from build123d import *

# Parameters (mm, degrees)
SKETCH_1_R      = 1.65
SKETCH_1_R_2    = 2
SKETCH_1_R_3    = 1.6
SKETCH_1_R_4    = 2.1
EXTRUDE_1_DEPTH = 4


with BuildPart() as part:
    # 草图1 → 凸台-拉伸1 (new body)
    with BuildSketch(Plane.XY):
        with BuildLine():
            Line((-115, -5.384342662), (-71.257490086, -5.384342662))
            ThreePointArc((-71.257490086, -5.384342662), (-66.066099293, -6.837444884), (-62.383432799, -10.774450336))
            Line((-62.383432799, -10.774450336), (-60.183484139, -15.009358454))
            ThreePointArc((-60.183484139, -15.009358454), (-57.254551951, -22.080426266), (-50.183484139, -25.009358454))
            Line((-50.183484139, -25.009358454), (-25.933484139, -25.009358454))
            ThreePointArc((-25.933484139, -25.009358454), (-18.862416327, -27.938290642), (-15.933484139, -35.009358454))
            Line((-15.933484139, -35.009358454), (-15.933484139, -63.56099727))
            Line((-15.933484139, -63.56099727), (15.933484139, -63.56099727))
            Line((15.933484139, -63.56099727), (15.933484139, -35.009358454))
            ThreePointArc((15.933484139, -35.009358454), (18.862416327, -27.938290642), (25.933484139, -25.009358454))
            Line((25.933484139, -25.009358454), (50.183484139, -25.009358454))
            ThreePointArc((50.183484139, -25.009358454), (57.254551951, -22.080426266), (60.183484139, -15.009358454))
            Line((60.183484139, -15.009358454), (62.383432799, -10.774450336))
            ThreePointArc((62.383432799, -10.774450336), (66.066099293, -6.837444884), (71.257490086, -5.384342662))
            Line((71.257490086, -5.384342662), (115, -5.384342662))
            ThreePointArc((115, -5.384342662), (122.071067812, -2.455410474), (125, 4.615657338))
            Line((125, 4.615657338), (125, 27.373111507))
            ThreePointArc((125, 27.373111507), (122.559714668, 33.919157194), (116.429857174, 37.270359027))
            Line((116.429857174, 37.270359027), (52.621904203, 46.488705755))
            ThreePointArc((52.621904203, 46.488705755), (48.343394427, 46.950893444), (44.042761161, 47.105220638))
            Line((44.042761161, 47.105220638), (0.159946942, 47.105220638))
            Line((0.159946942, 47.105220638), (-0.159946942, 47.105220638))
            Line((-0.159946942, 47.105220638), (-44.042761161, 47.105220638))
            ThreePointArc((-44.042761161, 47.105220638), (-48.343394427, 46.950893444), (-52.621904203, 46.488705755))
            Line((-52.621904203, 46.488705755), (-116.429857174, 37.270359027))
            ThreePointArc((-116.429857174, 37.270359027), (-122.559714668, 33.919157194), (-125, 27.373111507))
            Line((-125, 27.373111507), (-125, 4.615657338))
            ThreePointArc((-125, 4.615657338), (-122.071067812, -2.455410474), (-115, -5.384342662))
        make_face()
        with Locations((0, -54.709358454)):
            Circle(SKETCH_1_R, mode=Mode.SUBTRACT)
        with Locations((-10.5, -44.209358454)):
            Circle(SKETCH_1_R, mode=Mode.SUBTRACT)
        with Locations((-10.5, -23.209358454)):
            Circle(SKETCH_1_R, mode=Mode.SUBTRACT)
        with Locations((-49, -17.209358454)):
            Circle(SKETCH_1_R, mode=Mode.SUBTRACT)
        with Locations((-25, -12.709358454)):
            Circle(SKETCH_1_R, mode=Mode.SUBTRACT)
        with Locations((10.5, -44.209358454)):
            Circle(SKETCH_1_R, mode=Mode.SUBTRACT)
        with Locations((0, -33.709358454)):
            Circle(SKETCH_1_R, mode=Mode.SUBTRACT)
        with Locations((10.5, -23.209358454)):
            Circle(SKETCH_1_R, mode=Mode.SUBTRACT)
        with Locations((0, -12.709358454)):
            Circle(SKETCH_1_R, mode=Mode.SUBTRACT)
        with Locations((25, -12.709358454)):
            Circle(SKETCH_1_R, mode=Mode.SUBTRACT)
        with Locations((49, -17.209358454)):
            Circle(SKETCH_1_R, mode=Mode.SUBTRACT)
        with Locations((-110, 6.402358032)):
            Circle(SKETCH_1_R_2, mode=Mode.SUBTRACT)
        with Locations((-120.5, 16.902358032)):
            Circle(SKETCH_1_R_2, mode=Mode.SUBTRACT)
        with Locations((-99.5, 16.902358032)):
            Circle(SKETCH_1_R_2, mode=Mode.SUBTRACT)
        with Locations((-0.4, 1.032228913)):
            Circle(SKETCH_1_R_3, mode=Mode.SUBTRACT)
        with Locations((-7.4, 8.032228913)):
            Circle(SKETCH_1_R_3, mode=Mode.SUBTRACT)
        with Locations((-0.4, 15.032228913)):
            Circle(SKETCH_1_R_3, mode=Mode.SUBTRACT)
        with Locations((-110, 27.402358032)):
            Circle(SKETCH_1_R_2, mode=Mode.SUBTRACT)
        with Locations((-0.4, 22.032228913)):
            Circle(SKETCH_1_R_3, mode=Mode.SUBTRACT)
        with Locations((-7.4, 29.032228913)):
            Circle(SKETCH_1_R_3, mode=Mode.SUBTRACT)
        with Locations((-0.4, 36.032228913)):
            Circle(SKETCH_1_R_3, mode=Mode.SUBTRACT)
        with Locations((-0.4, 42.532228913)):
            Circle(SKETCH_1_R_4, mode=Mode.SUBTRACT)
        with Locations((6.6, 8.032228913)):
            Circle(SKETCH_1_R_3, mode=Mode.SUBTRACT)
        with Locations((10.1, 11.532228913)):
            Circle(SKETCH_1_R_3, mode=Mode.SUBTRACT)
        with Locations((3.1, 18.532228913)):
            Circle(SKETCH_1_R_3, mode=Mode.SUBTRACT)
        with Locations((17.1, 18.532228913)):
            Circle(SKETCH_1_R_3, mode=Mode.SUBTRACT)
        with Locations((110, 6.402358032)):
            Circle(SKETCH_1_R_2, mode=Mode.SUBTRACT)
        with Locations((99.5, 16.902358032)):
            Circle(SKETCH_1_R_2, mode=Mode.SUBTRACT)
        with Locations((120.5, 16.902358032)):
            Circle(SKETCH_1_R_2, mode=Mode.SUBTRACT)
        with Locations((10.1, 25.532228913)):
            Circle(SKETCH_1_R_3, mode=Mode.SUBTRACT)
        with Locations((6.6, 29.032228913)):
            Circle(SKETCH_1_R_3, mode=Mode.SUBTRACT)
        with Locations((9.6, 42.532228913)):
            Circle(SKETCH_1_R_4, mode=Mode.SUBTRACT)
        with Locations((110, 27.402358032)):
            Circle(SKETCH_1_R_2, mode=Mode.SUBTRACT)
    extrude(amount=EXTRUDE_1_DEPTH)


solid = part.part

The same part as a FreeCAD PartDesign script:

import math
import FreeCAD as App
import Part
import Sketcher

V = App.Vector

doc = App.newDocument("Part")
body = doc.addObject("PartDesign::Body", "Body")

# Sketch on XY plane
sketch1 = body.newObject("Sketcher::SketchObject", "Sketch")
sketch1.AttachmentSupport = (doc.getObject("XY_Plane"), [""])
sketch1.MapMode = "FlatFace"
sketch1.addGeometry([
    Part.LineSegment(V(-115, -5.4, 0), V(-71.3, -5.4, 0)),  # 0
    Part.ArcOfCircle(Part.Circle(V(-71.3, -15.4, 0), V(0, 0, 1), 10), math.radians(27), math.radians(90)),  # 1
    Part.LineSegment(V(-62.4, -10.8, 0), V(-60.2, -15, 0)),  # 2
    Part.ArcOfCircle(Part.Circle(V(-50.2, -15, 0), V(0, 0, 1), 10), math.radians(180), math.radians(270)),  # 3
    Part.LineSegment(V(-50.2, -25, 0), V(-25.9, -25, 0)),  # 4
    Part.ArcOfCircle(Part.Circle(V(-25.9, -35, 0), V(0, 0, 1), 10), math.radians(0), math.radians(90)),  # 5
    Part.LineSegment(V(-15.9, -35, 0), V(-15.9, -63.6, 0)),  # 6
    Part.LineSegment(V(-15.9, -63.6, 0), V(15.9, -63.6, 0)),  # 7
    Part.LineSegment(V(15.9, -63.6, 0), V(15.9, -35, 0)),  # 8
    Part.ArcOfCircle(Part.Circle(V(25.9, -35, 0), V(0, 0, 1), 10), math.radians(90), math.radians(180)),  # 9
    Part.LineSegment(V(25.9, -25, 0), V(50.2, -25, 0)),  # 10
    Part.ArcOfCircle(Part.Circle(V(50.2, -15, 0), V(0, 0, 1), 10), math.radians(-90), math.radians(0)),  # 11
    Part.LineSegment(V(60.2, -15, 0), V(62.4, -10.8, 0)),  # 12
    Part.ArcOfCircle(Part.Circle(V(71.3, -15.4, 0), V(0, 0, 1), 10), math.radians(90), math.radians(153)),  # 13
    Part.LineSegment(V(71.3, -5.4, 0), V(115, -5.4, 0)),  # 14
    Part.ArcOfCircle(Part.Circle(V(115, 4.6, 0), V(0, 0, 1), 10), math.radians(-90), math.radians(0)),  # 15
    Part.LineSegment(V(125, 4.6, 0), V(125, 27.4, 0)),  # 16
    Part.ArcOfCircle(Part.Circle(V(115, 27.4, 0), V(0, 0, 1), 10), math.radians(0), math.radians(82)),  # 17
    Part.LineSegment(V(116.4, 37.3, 0), V(52.6, 46.5, 0)),  # 18
    Part.ArcOfCircle(Part.Circle(V(44, -12.9, 0), V(0, 0, 1), 60), math.radians(81.78), math.radians(90)),  # 19
    Part.LineSegment(V(44, 47.1, 0), V(-44, 47.1, 0)),  # 20
    Part.ArcOfCircle(Part.Circle(V(-44, -12.9, 0), V(0, 0, 1), 60), math.radians(90), math.radians(98.22)),  # 21
    Part.LineSegment(V(-52.6, 46.5, 0), V(-116.4, 37.3, 0)),  # 22
    Part.ArcOfCircle(Part.Circle(V(-115, 27.4, 0), V(0, 0, 1), 10), math.radians(98), math.radians(180)),  # 23
    Part.LineSegment(V(-125, 27.4, 0), V(-125, 4.6, 0)),  # 24
    Part.ArcOfCircle(Part.Circle(V(-115, 4.6, 0), V(0, 0, 1), 10), math.radians(180), math.radians(270)),  # 25
    Part.Circle(V(-10.5, -44.2, 0), V(0, 0, 1), 1.6),  # 26
    Part.Circle(V(-10.5, -23.2, 0), V(0, 0, 1), 1.6),  # 27
    Part.Circle(V(-49, -17.2, 0), V(0, 0, 1), 1.6),  # 28
    Part.Circle(V(-25, -12.7, 0), V(0, 0, 1), 1.6),  # 29
    Part.Circle(V(0, -54.7, 0), V(0, 0, 1), 1.6),  # 30
    Part.Circle(V(10.5, -44.2, 0), V(0, 0, 1), 1.6),  # 31
    Part.Circle(V(0, -33.7, 0), V(0, 0, 1), 1.6),  # 32
    Part.Circle(V(10.5, -23.2, 0), V(0, 0, 1), 1.6),  # 33
    Part.Circle(V(0, -12.7, 0), V(0, 0, 1), 1.6),  # 34
    Part.Circle(V(25, -12.7, 0), V(0, 0, 1), 1.6),  # 35
    Part.Circle(V(49, -17.2, 0), V(0, 0, 1), 1.6),  # 36
    Part.Circle(V(-110, 6.4, 0), V(0, 0, 1), 2),  # 37
    Part.Circle(V(-120.5, 16.9, 0), V(0, 0, 1), 2),  # 38
    Part.Circle(V(-99.5, 16.9, 0), V(0, 0, 1), 2),  # 39
    Part.Circle(V(-0.4, 1, 0), V(0, 0, 1), 1.6),  # 40
    Part.Circle(V(-7.4, 8, 0), V(0, 0, 1), 1.6),  # 41
    Part.Circle(V(-0.4, 15, 0), V(0, 0, 1), 1.6),  # 42
    Part.Circle(V(-110, 27.4, 0), V(0, 0, 1), 2),  # 43
    Part.Circle(V(-0.4, 22, 0), V(0, 0, 1), 1.6),  # 44
    Part.Circle(V(-7.4, 29, 0), V(0, 0, 1), 1.6),  # 45
    Part.Circle(V(-0.4, 36, 0), V(0, 0, 1), 1.6),  # 46
    Part.Circle(V(-0.4, 42.5, 0), V(0, 0, 1), 2.1),  # 47
    Part.Circle(V(6.6, 8, 0), V(0, 0, 1), 1.6),  # 48
    Part.Circle(V(10.1, 11.5, 0), V(0, 0, 1), 1.6),  # 49
    Part.Circle(V(3.1, 18.5, 0), V(0, 0, 1), 1.6),  # 50
    Part.Circle(V(17.1, 18.5, 0), V(0, 0, 1), 1.6),  # 51
    Part.Circle(V(110, 6.4, 0), V(0, 0, 1), 2),  # 52
    Part.Circle(V(99.5, 16.9, 0), V(0, 0, 1), 2),  # 53
    Part.Circle(V(120.5, 16.9, 0), V(0, 0, 1), 2),  # 54
    Part.Circle(V(10.1, 25.5, 0), V(0, 0, 1), 1.6),  # 55
    Part.Circle(V(6.6, 29, 0), V(0, 0, 1), 1.6),  # 56
    Part.Circle(V(9.6, 42.5, 0), V(0, 0, 1), 2.1),  # 57
    Part.Circle(V(110, 27.4, 0), V(0, 0, 1), 2),  # 58
], False)
sketch1.addConstraint([
    Sketcher.Constraint("Tangent", 0, 2, 1, 2),
    Sketcher.Constraint("Tangent", 1, 1, 2, 1),
    Sketcher.Constraint("Coincident", 2, 2, 3, 1),
    Sketcher.Constraint("Tangent", 3, 2, 4, 1),
    Sketcher.Constraint("Tangent", 4, 2, 5, 2),
    Sketcher.Constraint("Tangent", 5, 1, 6, 1),
    Sketcher.Constraint("Coincident", 6, 2, 7, 1),
    Sketcher.Constraint("Coincident", 7, 2, 8, 1),
    Sketcher.Constraint("Tangent", 8, 2, 9, 2),
    Sketcher.Constraint("Tangent", 9, 1, 10, 1),
    Sketcher.Constraint("Tangent", 10, 2, 11, 1),
    Sketcher.Constraint("Coincident", 11, 2, 12, 1),
    Sketcher.Constraint("Tangent", 12, 2, 13, 2),
    Sketcher.Constraint("Tangent", 13, 1, 14, 1),
    Sketcher.Constraint("Tangent", 14, 2, 15, 1),
    Sketcher.Constraint("Tangent", 15, 2, 16, 1),
    Sketcher.Constraint("Tangent", 16, 2, 17, 1),
    Sketcher.Constraint("Tangent", 17, 2, 18, 1),
    Sketcher.Constraint("Tangent", 18, 2, 19, 1),
    Sketcher.Constraint("Tangent", 19, 2, 20, 1),
    Sketcher.Constraint("Tangent", 20, 2, 21, 1),
    Sketcher.Constraint("Tangent", 21, 2, 22, 1),
    Sketcher.Constraint("Tangent", 22, 2, 23, 1),
    Sketcher.Constraint("Tangent", 23, 2, 24, 1),
    Sketcher.Constraint("Tangent", 24, 2, 25, 1),
    Sketcher.Constraint("Tangent", 25, 2, 0, 1),
    Sketcher.Constraint("Horizontal", 0),
    Sketcher.Constraint("Horizontal", 4),
    Sketcher.Constraint("Vertical", 6),
    Sketcher.Constraint("Horizontal", 7),
    Sketcher.Constraint("Vertical", 8),
    Sketcher.Constraint("Horizontal", 10),
    Sketcher.Constraint("Horizontal", 14),
    Sketcher.Constraint("Vertical", 16),
    Sketcher.Constraint("Horizontal", 20),
    Sketcher.Constraint("Vertical", 24),
    Sketcher.Constraint("Equal", 1, 3),
    Sketcher.Constraint("Equal", 3, 5),
    Sketcher.Constraint("Equal", 5, 9),
    Sketcher.Constraint("Equal", 9, 11),
    Sketcher.Constraint("Equal", 11, 13),
    Sketcher.Constraint("Equal", 13, 15),
    Sketcher.Constraint("Equal", 15, 17),
    Sketcher.Constraint("Equal", 19, 21),
    Sketcher.Constraint("Equal", 17, 23),
    Sketcher.Constraint("Equal", 23, 25),
    Sketcher.Constraint("Equal", 26, 27),
    Sketcher.Constraint("Equal", 27, 28),
    Sketcher.Constraint("Equal", 28, 29),
    Sketcher.Constraint("Equal", 29, 30),
    Sketcher.Constraint("Equal", 30, 31),
    Sketcher.Constraint("Equal", 31, 32),
    Sketcher.Constraint("Equal", 32, 33),
    Sketcher.Constraint("Equal", 33, 34),
    Sketcher.Constraint("Equal", 34, 35),
    Sketcher.Constraint("Equal", 35, 36),
    Sketcher.Constraint("Equal", 37, 38),
    Sketcher.Constraint("Equal", 38, 39),
    Sketcher.Constraint("Equal", 40, 41),
    Sketcher.Constraint("Equal", 41, 42),
    Sketcher.Constraint("Equal", 39, 43),
    Sketcher.Constraint("Equal", 42, 44),
    Sketcher.Constraint("Equal", 44, 45),
    Sketcher.Constraint("Equal", 45, 46),
    Sketcher.Constraint("Equal", 46, 48),
    Sketcher.Constraint("Equal", 48, 49),
    Sketcher.Constraint("Equal", 49, 50),
    Sketcher.Constraint("Equal", 50, 51),
    Sketcher.Constraint("Equal", 43, 52),
    Sketcher.Constraint("Equal", 52, 53),
    Sketcher.Constraint("Equal", 53, 54),
    Sketcher.Constraint("Equal", 51, 55),
    Sketcher.Constraint("Equal", 55, 56),
    Sketcher.Constraint("Equal", 47, 57),
    Sketcher.Constraint("Equal", 54, 58),
    Sketcher.Constraint("Symmetric", 5, 3, 9, 3, -2),
    Sketcher.Constraint("Symmetric", 1, 3, 13, 3, -2),
    Sketcher.Constraint("Symmetric", 17, 3, 23, 3, -2),
    Sketcher.Constraint("Symmetric", 26, 3, 31, 3, -2),
    Sketcher.Constraint("Symmetric", 27, 3, 33, 3, -2),
    Sketcher.Constraint("Symmetric", 29, 3, 35, 3, -2),
    Sketcher.Constraint("Symmetric", 28, 3, 36, 3, -2),
    Sketcher.Constraint("Symmetric", 37, 3, 52, 3, -2),
    Sketcher.Constraint("Symmetric", 39, 3, 53, 3, -2),
    Sketcher.Constraint("Symmetric", 38, 3, 54, 3, -2),
    Sketcher.Constraint("Symmetric", 43, 3, 58, 3, -2),
    Sketcher.Constraint("Symmetric", 2, 2, 11, 2, -2),
    Sketcher.Constraint("PointOnObject", 30, 3, -2),
    Sketcher.Constraint("PointOnObject", 32, 3, -2),
    Sketcher.Constraint("PointOnObject", 34, 3, -2),
    Sketcher.Constraint("Horizontal", 29, 3, 34, 3),
    Sketcher.Constraint("Horizontal", 38, 3, 39, 3),
    Sketcher.Constraint("Horizontal", 41, 3, 48, 3),
    Sketcher.Constraint("Horizontal", 50, 3, 51, 3),
    Sketcher.Constraint("Horizontal", 45, 3, 56, 3),
    Sketcher.Constraint("Horizontal", 47, 3, 57, 3),
    Sketcher.Constraint("Horizontal", 11, 3, 2, 2),
    Sketcher.Constraint("Vertical", 26, 3, 27, 3),
    Sketcher.Constraint("Vertical", 40, 3, 42, 3),
    Sketcher.Constraint("Vertical", 37, 3, 43, 3),
    Sketcher.Constraint("Vertical", 42, 3, 44, 3),
    Sketcher.Constraint("Vertical", 41, 3, 45, 3),
    Sketcher.Constraint("Vertical", 44, 3, 46, 3),
    Sketcher.Constraint("Vertical", 46, 3, 47, 3),
    Sketcher.Constraint("Vertical", 49, 3, 55, 3),
    Sketcher.Constraint("Vertical", 48, 3, 56, 3),
    Sketcher.Constraint("Equal", 18, 22),
    Sketcher.Constraint("Diameter", 37, 4.0),
    Sketcher.Constraint("Radius", 1, 10.0),
    Sketcher.Constraint("Radius", 19, 60.0),
    Sketcher.Constraint("Diameter", 26, 3.3),
    Sketcher.Constraint("Diameter", 40, 3.2),
    Sketcher.Constraint("Diameter", 47, 4.2),
    Sketcher.Constraint("DistanceX", -1, 1, 15, 3, 115.0),
    Sketcher.Constraint("DistanceX", 28, 3, -1, 1, 49.0),
    Sketcher.Constraint("DistanceX", 29, 3, -1, 1, 25.0),
    Sketcher.Constraint("DistanceX", 37, 3, -1, 1, 110.0),
    Sketcher.Constraint("DistanceX", 4, 1, 4, 2, 24.25),
    Sketcher.Constraint("DistanceX", 26, 3, -1, 1, 10.5),
    Sketcher.Constraint("DistanceX", 38, 3, -1, 1, 120.5),
    Sketcher.Constraint("DistanceX", 39, 3, -1, 1, 99.5),
    Sketcher.Constraint("DistanceX", 40, 3, -1, 1, 0.4),
    Sketcher.Constraint("DistanceX", 41, 3, -1, 1, 7.4),
    Sketcher.Constraint("DistanceX", -1, 1, 48, 3, 6.6),
    Sketcher.Constraint("DistanceX", -1, 1, 49, 3, 10.1),
    Sketcher.Constraint("DistanceX", -1, 1, 50, 3, 3.1),
    Sketcher.Constraint("DistanceX", -1, 1, 51, 3, 17.1),
    Sketcher.Constraint("DistanceX", -1, 1, 57, 3, 9.6),
    Sketcher.Constraint("DistanceX", 0, 1, 0, 2, 43.74251),
    Sketcher.Constraint("DistanceX", 7, 1, 7, 2, 31.866968),
    Sketcher.Constraint("DistanceY", 6, 2, 6, 1, 28.551639),
    Sketcher.Constraint("DistanceX", 20, 2, 20, 1, 88.085522),
    Sketcher.Constraint("DistanceY", 16, 1, 16, 2, 22.757454),
    Sketcher.Constraint("DistanceY", 3, 3, -1, 1, 15.009358),
    Sketcher.Constraint("DistanceY", -1, 1, 17, 3, 27.373112),
    Sketcher.Constraint("DistanceY", 19, 3, -1, 1, 12.894779),
    Sketcher.Constraint("DistanceY", 26, 3, -1, 1, 44.209358),
    Sketcher.Constraint("DistanceY", 27, 3, -1, 1, 23.209358),
    Sketcher.Constraint("DistanceY", 28, 3, -1, 1, 17.209358),
    Sketcher.Constraint("DistanceY", 29, 3, -1, 1, 12.709358),
    Sketcher.Constraint("DistanceY", 30, 3, -1, 1, 54.709358),
    Sketcher.Constraint("DistanceY", 32, 3, -1, 1, 33.709358),
    Sketcher.Constraint("DistanceY", -1, 1, 37, 3, 6.402358),
    Sketcher.Constraint("DistanceY", -1, 1, 38, 3, 16.902358),
    Sketcher.Constraint("DistanceY", -1, 1, 40, 3, 1.032229),
    Sketcher.Constraint("DistanceY", -1, 1, 41, 3, 8.032229),
    Sketcher.Constraint("DistanceY", -1, 1, 42, 3, 15.032229),
    Sketcher.Constraint("DistanceY", -1, 1, 43, 3, 27.402358),
    Sketcher.Constraint("DistanceY", -1, 1, 44, 3, 22.032229),
    Sketcher.Constraint("DistanceY", -1, 1, 45, 3, 29.032229),
    Sketcher.Constraint("DistanceY", -1, 1, 46, 3, 36.032229),
    Sketcher.Constraint("DistanceY", -1, 1, 47, 3, 42.532229),
    Sketcher.Constraint("DistanceY", -1, 1, 49, 3, 11.532229),
    Sketcher.Constraint("DistanceY", -1, 1, 50, 3, 18.532229),
    Sketcher.Constraint("DistanceY", -1, 1, 55, 3, 25.532229),
])
pad1 = body.newObject("PartDesign::Pad", "Pad")
pad1.Profile = sketch1
pad1.Length = 4

doc.recompute()
